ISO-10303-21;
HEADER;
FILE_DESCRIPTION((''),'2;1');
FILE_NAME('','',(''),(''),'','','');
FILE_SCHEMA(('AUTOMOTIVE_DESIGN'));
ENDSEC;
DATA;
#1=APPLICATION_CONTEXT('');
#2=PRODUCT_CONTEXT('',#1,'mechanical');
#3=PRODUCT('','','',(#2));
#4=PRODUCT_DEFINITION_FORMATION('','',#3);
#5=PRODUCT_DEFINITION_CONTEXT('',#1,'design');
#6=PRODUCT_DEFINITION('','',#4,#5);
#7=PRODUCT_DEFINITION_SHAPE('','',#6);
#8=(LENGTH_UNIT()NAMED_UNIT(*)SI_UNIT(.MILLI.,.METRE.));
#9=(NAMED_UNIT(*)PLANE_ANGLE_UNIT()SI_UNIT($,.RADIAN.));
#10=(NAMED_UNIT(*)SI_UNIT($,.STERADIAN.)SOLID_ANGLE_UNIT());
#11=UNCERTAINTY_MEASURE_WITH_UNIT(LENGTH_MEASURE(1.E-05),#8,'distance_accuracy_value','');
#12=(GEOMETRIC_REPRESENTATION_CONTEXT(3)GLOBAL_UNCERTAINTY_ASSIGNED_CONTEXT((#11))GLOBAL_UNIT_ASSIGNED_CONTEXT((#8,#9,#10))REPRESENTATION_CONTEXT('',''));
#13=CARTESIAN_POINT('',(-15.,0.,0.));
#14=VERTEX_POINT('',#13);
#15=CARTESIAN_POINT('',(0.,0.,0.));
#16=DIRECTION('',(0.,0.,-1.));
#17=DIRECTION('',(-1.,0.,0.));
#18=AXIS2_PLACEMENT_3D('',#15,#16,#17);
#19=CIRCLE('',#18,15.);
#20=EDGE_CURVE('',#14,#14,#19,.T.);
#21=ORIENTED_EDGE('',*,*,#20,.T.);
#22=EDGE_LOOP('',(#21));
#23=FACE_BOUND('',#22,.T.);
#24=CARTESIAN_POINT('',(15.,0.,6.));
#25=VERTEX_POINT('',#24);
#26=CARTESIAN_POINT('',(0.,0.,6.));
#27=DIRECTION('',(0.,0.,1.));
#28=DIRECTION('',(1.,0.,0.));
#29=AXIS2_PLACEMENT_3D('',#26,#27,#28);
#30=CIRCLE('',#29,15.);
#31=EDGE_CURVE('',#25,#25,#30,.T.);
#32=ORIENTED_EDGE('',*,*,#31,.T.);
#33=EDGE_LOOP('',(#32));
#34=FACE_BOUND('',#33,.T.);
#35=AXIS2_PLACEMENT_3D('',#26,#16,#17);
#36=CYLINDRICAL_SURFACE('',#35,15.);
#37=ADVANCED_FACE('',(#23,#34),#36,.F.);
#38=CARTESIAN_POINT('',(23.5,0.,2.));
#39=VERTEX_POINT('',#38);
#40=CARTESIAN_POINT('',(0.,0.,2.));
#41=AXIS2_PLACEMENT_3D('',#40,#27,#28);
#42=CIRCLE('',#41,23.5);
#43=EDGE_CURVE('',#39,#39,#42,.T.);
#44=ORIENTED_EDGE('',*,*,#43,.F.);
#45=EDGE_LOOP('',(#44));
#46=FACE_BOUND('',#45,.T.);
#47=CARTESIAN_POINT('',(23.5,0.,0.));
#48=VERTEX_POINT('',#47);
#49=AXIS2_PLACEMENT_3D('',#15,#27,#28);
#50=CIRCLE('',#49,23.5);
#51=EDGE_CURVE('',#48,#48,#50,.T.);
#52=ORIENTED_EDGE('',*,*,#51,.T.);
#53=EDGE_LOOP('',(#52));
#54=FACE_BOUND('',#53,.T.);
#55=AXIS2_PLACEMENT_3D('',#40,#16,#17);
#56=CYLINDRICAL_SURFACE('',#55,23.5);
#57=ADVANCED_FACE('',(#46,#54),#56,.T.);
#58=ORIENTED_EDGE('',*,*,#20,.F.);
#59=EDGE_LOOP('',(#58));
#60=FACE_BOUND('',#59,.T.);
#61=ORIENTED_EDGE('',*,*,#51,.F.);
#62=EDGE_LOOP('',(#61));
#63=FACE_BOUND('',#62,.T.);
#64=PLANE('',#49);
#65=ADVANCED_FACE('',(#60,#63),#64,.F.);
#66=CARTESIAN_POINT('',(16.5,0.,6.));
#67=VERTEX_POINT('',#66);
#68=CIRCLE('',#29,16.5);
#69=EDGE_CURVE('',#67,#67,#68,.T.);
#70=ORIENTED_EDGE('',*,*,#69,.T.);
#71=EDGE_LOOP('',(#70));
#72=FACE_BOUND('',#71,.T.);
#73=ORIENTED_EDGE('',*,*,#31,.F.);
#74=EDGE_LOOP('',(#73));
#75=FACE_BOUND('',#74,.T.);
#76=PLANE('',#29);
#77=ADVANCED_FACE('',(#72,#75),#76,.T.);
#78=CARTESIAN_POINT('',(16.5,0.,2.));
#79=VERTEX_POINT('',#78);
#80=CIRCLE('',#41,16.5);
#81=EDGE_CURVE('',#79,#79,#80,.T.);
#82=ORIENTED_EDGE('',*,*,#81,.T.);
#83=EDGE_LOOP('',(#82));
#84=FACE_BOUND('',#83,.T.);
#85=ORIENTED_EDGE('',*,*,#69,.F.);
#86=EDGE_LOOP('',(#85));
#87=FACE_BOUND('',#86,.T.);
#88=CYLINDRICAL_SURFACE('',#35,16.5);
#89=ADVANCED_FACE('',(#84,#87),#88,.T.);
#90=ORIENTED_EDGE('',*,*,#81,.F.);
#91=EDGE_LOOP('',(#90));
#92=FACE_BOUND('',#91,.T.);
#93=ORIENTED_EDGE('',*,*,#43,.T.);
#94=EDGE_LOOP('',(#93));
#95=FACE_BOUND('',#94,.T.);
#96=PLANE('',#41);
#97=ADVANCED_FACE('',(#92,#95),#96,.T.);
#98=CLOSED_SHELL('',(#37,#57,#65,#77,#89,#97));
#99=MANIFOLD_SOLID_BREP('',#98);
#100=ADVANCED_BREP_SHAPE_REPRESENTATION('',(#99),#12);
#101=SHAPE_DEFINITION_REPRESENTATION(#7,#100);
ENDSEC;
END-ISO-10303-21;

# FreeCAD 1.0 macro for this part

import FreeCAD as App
import Part
import Sketcher

doc = App.newDocument("Part")
body = doc.addObject("PartDesign::Body", "Body")

# Sketch on XY plane
sketch1 = body.newObject("Sketcher::SketchObject", "Sketch")
sketch1.AttachmentSupport = (doc.getObject("XY_Plane"), [""])
sketch1.MapMode = "FlatFace"
sketch1.addGeometry(Part.Circle(App.Vector(0, 0, 0), App.Vector(0, 0, 1), 24), False)
sketch1.addConstraint([
    Sketcher.Constraint("Coincident", 0, 3, -1, 1),
    Sketcher.Constraint("Diameter", 0, 47.0),
])
pad1 = body.newObject("PartDesign::Pad", "Pad")
pad1.Profile = sketch1
pad1.Length = 2

# Sketch on XY plane
sketch2 = body.newObject("Sketcher::SketchObject", "Sketch001")
sketch2.AttachmentSupport = (doc.getObject("XY_Plane"), [""])
sketch2.MapMode = "FlatFace"
sketch2.AttachmentOffset = App.Placement(App.Vector(0, 0, 2), App.Rotation())
sketch2.addGeometry([
    Part.Circle(App.Vector(0, 0, 0), App.Vector(0, 0, 1), 16),
    Part.Circle(App.Vector(0, 0, 0), App.Vector(0, 0, 1), 15),
], False)
sketch2.addConstraint([
    Sketcher.Constraint("Coincident", 0, 3, -1, 1),
    Sketcher.Constraint("Coincident", 1, 3, -1, 1),
    Sketcher.Constraint("Diameter", 0, 33.0),
    Sketcher.Constraint("Diameter", 1, 30.0),
])
pad2 = body.newObject("PartDesign::Pad", "Pad001")
pad2.Profile = sketch2
pad2.Length = 4

# Sketch on XY plane
sketch3 = body.newObject("Sketcher::SketchObject", "Sketch002")
sketch3.AttachmentSupport = (doc.getObject("XY_Plane"), [""])
sketch3.MapMode = "FlatFace"
sketch3.addGeometry(Part.Circle(App.Vector(0, 0, 0), App.Vector(0, 0, 1), 15), False)
sketch3.addConstraint([
    Sketcher.Constraint("Coincident", 0, 3, -1, 1),
    Sketcher.Constraint("Diameter", 0, 30.0),
])
pocket1 = body.newObject("PartDesign::Pocket", "Pocket")
pocket1.Profile = sketch3
pocket1.Length = 4
pocket1.Reversed = True

doc.recompute()
